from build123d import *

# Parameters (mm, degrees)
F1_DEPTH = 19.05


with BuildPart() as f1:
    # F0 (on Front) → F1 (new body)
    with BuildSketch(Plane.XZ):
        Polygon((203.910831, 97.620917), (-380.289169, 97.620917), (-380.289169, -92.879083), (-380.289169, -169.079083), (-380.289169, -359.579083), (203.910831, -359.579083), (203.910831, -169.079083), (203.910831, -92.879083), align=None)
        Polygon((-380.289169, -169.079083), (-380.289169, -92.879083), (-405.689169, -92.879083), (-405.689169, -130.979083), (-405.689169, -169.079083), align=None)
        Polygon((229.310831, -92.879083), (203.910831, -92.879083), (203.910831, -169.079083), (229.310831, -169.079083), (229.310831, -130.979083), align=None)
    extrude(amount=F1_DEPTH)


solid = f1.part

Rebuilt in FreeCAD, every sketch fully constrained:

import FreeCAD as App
import Part
import Sketcher

V = App.Vector
Q = App.Units.Quantity


def add_polygon(sketch, points):
    """Adds a closed chain of lines whose ends are joined by coincident constraints."""
    first, n = sketch.GeometryCount, len(points)
    for a, b in zip(points, points[1:] + points[:1]):
        sketch.addGeometry(Part.LineSegment(App.Vector(*a, 0), App.Vector(*b, 0)), False)
    for i in range(n):
        sketch.addConstraint(Sketcher.Constraint("Coincident", first + i, 2, first + (i + 1) % n, 1))

doc = App.newDocument("Part")
body = doc.addObject("PartDesign::Body", "Body")

# Sketch on XZ plane
sketch1 = body.newObject("Sketcher::SketchObject", "Sketch")
sketch1.AttachmentSupport = (doc.getObject("XZ_Plane"), [""])
sketch1.MapMode = "FlatFace"
add_polygon(sketch1, [(204, 98), (-380, 98), (-380, -93), (-406, -93), (-406, -169), (-380, -169), (-380, -360), (204, -360), (204, -169), (229, -169), (229, -93), (204, -93)])  # lines 0-11
sketch1.addConstraint(Sketcher.Constraint("Horizontal", 0))
sketch1.addConstraint(Sketcher.Constraint("Vertical", 1))
sketch1.addConstraint(Sketcher.Constraint("Horizontal", 2))
sketch1.addConstraint(Sketcher.Constraint("Vertical", 3))
sketch1.addConstraint(Sketcher.Constraint("Horizontal", 4))
sketch1.addConstraint(Sketcher.Constraint("Vertical", 5))
sketch1.addConstraint(Sketcher.Constraint("Horizontal", 6))
sketch1.addConstraint(Sketcher.Constraint("Vertical", 7))
sketch1.addConstraint(Sketcher.Constraint("Horizontal", 8))
sketch1.addConstraint(Sketcher.Constraint("Vertical", 9))
sketch1.addConstraint(Sketcher.Constraint("Horizontal", 10))
sketch1.addConstraint(Sketcher.Constraint("Vertical", 11))
sketch1.addConstraint(Sketcher.Constraint("Horizontal", 4, 2, 7, 2))
sketch1.addConstraint(Sketcher.Constraint("Horizontal", 2, 2, 9, 2))
sketch1.addConstraint(Sketcher.Constraint("Vertical", 1, 2, 4, 2))
sketch1.addConstraint(Sketcher.Constraint("Vertical", 7, 2, 10, 2))
sketch1.addConstraint(Sketcher.Constraint("Equal", 4, 8))
sketch1.addConstraint(Sketcher.Constraint("Equal", 1, 5))
sketch1.addConstraint(Sketcher.Constraint("DistanceX", 0, 2, 0, 1, Q("23 in")))
sketch1.addConstraint(Sketcher.Constraint("DistanceX", 2, 2, 2, 1, Q("1 in")))
sketch1.addConstraint(Sketcher.Constraint("DistanceY", 3, 2, 3, 1, Q("3 in")))
sketch1.addConstraint(Sketcher.Constraint("DistanceY", 1, 2, 1, 1, Q("7.5 in")))
sketch1.addConstraint(Sketcher.Constraint("DistanceX", 0, 2, -1, 1, Q("380.289169 mm")))
sketch1.addConstraint(Sketcher.Constraint("DistanceY", -1, 1, 0, 2, Q("97.620917 mm")))
pad1 = body.newObject("PartDesign::Pad", "Pad")
pad1.Profile = sketch1
pad1.Length = Q("0.75 in")

doc.recompute()
